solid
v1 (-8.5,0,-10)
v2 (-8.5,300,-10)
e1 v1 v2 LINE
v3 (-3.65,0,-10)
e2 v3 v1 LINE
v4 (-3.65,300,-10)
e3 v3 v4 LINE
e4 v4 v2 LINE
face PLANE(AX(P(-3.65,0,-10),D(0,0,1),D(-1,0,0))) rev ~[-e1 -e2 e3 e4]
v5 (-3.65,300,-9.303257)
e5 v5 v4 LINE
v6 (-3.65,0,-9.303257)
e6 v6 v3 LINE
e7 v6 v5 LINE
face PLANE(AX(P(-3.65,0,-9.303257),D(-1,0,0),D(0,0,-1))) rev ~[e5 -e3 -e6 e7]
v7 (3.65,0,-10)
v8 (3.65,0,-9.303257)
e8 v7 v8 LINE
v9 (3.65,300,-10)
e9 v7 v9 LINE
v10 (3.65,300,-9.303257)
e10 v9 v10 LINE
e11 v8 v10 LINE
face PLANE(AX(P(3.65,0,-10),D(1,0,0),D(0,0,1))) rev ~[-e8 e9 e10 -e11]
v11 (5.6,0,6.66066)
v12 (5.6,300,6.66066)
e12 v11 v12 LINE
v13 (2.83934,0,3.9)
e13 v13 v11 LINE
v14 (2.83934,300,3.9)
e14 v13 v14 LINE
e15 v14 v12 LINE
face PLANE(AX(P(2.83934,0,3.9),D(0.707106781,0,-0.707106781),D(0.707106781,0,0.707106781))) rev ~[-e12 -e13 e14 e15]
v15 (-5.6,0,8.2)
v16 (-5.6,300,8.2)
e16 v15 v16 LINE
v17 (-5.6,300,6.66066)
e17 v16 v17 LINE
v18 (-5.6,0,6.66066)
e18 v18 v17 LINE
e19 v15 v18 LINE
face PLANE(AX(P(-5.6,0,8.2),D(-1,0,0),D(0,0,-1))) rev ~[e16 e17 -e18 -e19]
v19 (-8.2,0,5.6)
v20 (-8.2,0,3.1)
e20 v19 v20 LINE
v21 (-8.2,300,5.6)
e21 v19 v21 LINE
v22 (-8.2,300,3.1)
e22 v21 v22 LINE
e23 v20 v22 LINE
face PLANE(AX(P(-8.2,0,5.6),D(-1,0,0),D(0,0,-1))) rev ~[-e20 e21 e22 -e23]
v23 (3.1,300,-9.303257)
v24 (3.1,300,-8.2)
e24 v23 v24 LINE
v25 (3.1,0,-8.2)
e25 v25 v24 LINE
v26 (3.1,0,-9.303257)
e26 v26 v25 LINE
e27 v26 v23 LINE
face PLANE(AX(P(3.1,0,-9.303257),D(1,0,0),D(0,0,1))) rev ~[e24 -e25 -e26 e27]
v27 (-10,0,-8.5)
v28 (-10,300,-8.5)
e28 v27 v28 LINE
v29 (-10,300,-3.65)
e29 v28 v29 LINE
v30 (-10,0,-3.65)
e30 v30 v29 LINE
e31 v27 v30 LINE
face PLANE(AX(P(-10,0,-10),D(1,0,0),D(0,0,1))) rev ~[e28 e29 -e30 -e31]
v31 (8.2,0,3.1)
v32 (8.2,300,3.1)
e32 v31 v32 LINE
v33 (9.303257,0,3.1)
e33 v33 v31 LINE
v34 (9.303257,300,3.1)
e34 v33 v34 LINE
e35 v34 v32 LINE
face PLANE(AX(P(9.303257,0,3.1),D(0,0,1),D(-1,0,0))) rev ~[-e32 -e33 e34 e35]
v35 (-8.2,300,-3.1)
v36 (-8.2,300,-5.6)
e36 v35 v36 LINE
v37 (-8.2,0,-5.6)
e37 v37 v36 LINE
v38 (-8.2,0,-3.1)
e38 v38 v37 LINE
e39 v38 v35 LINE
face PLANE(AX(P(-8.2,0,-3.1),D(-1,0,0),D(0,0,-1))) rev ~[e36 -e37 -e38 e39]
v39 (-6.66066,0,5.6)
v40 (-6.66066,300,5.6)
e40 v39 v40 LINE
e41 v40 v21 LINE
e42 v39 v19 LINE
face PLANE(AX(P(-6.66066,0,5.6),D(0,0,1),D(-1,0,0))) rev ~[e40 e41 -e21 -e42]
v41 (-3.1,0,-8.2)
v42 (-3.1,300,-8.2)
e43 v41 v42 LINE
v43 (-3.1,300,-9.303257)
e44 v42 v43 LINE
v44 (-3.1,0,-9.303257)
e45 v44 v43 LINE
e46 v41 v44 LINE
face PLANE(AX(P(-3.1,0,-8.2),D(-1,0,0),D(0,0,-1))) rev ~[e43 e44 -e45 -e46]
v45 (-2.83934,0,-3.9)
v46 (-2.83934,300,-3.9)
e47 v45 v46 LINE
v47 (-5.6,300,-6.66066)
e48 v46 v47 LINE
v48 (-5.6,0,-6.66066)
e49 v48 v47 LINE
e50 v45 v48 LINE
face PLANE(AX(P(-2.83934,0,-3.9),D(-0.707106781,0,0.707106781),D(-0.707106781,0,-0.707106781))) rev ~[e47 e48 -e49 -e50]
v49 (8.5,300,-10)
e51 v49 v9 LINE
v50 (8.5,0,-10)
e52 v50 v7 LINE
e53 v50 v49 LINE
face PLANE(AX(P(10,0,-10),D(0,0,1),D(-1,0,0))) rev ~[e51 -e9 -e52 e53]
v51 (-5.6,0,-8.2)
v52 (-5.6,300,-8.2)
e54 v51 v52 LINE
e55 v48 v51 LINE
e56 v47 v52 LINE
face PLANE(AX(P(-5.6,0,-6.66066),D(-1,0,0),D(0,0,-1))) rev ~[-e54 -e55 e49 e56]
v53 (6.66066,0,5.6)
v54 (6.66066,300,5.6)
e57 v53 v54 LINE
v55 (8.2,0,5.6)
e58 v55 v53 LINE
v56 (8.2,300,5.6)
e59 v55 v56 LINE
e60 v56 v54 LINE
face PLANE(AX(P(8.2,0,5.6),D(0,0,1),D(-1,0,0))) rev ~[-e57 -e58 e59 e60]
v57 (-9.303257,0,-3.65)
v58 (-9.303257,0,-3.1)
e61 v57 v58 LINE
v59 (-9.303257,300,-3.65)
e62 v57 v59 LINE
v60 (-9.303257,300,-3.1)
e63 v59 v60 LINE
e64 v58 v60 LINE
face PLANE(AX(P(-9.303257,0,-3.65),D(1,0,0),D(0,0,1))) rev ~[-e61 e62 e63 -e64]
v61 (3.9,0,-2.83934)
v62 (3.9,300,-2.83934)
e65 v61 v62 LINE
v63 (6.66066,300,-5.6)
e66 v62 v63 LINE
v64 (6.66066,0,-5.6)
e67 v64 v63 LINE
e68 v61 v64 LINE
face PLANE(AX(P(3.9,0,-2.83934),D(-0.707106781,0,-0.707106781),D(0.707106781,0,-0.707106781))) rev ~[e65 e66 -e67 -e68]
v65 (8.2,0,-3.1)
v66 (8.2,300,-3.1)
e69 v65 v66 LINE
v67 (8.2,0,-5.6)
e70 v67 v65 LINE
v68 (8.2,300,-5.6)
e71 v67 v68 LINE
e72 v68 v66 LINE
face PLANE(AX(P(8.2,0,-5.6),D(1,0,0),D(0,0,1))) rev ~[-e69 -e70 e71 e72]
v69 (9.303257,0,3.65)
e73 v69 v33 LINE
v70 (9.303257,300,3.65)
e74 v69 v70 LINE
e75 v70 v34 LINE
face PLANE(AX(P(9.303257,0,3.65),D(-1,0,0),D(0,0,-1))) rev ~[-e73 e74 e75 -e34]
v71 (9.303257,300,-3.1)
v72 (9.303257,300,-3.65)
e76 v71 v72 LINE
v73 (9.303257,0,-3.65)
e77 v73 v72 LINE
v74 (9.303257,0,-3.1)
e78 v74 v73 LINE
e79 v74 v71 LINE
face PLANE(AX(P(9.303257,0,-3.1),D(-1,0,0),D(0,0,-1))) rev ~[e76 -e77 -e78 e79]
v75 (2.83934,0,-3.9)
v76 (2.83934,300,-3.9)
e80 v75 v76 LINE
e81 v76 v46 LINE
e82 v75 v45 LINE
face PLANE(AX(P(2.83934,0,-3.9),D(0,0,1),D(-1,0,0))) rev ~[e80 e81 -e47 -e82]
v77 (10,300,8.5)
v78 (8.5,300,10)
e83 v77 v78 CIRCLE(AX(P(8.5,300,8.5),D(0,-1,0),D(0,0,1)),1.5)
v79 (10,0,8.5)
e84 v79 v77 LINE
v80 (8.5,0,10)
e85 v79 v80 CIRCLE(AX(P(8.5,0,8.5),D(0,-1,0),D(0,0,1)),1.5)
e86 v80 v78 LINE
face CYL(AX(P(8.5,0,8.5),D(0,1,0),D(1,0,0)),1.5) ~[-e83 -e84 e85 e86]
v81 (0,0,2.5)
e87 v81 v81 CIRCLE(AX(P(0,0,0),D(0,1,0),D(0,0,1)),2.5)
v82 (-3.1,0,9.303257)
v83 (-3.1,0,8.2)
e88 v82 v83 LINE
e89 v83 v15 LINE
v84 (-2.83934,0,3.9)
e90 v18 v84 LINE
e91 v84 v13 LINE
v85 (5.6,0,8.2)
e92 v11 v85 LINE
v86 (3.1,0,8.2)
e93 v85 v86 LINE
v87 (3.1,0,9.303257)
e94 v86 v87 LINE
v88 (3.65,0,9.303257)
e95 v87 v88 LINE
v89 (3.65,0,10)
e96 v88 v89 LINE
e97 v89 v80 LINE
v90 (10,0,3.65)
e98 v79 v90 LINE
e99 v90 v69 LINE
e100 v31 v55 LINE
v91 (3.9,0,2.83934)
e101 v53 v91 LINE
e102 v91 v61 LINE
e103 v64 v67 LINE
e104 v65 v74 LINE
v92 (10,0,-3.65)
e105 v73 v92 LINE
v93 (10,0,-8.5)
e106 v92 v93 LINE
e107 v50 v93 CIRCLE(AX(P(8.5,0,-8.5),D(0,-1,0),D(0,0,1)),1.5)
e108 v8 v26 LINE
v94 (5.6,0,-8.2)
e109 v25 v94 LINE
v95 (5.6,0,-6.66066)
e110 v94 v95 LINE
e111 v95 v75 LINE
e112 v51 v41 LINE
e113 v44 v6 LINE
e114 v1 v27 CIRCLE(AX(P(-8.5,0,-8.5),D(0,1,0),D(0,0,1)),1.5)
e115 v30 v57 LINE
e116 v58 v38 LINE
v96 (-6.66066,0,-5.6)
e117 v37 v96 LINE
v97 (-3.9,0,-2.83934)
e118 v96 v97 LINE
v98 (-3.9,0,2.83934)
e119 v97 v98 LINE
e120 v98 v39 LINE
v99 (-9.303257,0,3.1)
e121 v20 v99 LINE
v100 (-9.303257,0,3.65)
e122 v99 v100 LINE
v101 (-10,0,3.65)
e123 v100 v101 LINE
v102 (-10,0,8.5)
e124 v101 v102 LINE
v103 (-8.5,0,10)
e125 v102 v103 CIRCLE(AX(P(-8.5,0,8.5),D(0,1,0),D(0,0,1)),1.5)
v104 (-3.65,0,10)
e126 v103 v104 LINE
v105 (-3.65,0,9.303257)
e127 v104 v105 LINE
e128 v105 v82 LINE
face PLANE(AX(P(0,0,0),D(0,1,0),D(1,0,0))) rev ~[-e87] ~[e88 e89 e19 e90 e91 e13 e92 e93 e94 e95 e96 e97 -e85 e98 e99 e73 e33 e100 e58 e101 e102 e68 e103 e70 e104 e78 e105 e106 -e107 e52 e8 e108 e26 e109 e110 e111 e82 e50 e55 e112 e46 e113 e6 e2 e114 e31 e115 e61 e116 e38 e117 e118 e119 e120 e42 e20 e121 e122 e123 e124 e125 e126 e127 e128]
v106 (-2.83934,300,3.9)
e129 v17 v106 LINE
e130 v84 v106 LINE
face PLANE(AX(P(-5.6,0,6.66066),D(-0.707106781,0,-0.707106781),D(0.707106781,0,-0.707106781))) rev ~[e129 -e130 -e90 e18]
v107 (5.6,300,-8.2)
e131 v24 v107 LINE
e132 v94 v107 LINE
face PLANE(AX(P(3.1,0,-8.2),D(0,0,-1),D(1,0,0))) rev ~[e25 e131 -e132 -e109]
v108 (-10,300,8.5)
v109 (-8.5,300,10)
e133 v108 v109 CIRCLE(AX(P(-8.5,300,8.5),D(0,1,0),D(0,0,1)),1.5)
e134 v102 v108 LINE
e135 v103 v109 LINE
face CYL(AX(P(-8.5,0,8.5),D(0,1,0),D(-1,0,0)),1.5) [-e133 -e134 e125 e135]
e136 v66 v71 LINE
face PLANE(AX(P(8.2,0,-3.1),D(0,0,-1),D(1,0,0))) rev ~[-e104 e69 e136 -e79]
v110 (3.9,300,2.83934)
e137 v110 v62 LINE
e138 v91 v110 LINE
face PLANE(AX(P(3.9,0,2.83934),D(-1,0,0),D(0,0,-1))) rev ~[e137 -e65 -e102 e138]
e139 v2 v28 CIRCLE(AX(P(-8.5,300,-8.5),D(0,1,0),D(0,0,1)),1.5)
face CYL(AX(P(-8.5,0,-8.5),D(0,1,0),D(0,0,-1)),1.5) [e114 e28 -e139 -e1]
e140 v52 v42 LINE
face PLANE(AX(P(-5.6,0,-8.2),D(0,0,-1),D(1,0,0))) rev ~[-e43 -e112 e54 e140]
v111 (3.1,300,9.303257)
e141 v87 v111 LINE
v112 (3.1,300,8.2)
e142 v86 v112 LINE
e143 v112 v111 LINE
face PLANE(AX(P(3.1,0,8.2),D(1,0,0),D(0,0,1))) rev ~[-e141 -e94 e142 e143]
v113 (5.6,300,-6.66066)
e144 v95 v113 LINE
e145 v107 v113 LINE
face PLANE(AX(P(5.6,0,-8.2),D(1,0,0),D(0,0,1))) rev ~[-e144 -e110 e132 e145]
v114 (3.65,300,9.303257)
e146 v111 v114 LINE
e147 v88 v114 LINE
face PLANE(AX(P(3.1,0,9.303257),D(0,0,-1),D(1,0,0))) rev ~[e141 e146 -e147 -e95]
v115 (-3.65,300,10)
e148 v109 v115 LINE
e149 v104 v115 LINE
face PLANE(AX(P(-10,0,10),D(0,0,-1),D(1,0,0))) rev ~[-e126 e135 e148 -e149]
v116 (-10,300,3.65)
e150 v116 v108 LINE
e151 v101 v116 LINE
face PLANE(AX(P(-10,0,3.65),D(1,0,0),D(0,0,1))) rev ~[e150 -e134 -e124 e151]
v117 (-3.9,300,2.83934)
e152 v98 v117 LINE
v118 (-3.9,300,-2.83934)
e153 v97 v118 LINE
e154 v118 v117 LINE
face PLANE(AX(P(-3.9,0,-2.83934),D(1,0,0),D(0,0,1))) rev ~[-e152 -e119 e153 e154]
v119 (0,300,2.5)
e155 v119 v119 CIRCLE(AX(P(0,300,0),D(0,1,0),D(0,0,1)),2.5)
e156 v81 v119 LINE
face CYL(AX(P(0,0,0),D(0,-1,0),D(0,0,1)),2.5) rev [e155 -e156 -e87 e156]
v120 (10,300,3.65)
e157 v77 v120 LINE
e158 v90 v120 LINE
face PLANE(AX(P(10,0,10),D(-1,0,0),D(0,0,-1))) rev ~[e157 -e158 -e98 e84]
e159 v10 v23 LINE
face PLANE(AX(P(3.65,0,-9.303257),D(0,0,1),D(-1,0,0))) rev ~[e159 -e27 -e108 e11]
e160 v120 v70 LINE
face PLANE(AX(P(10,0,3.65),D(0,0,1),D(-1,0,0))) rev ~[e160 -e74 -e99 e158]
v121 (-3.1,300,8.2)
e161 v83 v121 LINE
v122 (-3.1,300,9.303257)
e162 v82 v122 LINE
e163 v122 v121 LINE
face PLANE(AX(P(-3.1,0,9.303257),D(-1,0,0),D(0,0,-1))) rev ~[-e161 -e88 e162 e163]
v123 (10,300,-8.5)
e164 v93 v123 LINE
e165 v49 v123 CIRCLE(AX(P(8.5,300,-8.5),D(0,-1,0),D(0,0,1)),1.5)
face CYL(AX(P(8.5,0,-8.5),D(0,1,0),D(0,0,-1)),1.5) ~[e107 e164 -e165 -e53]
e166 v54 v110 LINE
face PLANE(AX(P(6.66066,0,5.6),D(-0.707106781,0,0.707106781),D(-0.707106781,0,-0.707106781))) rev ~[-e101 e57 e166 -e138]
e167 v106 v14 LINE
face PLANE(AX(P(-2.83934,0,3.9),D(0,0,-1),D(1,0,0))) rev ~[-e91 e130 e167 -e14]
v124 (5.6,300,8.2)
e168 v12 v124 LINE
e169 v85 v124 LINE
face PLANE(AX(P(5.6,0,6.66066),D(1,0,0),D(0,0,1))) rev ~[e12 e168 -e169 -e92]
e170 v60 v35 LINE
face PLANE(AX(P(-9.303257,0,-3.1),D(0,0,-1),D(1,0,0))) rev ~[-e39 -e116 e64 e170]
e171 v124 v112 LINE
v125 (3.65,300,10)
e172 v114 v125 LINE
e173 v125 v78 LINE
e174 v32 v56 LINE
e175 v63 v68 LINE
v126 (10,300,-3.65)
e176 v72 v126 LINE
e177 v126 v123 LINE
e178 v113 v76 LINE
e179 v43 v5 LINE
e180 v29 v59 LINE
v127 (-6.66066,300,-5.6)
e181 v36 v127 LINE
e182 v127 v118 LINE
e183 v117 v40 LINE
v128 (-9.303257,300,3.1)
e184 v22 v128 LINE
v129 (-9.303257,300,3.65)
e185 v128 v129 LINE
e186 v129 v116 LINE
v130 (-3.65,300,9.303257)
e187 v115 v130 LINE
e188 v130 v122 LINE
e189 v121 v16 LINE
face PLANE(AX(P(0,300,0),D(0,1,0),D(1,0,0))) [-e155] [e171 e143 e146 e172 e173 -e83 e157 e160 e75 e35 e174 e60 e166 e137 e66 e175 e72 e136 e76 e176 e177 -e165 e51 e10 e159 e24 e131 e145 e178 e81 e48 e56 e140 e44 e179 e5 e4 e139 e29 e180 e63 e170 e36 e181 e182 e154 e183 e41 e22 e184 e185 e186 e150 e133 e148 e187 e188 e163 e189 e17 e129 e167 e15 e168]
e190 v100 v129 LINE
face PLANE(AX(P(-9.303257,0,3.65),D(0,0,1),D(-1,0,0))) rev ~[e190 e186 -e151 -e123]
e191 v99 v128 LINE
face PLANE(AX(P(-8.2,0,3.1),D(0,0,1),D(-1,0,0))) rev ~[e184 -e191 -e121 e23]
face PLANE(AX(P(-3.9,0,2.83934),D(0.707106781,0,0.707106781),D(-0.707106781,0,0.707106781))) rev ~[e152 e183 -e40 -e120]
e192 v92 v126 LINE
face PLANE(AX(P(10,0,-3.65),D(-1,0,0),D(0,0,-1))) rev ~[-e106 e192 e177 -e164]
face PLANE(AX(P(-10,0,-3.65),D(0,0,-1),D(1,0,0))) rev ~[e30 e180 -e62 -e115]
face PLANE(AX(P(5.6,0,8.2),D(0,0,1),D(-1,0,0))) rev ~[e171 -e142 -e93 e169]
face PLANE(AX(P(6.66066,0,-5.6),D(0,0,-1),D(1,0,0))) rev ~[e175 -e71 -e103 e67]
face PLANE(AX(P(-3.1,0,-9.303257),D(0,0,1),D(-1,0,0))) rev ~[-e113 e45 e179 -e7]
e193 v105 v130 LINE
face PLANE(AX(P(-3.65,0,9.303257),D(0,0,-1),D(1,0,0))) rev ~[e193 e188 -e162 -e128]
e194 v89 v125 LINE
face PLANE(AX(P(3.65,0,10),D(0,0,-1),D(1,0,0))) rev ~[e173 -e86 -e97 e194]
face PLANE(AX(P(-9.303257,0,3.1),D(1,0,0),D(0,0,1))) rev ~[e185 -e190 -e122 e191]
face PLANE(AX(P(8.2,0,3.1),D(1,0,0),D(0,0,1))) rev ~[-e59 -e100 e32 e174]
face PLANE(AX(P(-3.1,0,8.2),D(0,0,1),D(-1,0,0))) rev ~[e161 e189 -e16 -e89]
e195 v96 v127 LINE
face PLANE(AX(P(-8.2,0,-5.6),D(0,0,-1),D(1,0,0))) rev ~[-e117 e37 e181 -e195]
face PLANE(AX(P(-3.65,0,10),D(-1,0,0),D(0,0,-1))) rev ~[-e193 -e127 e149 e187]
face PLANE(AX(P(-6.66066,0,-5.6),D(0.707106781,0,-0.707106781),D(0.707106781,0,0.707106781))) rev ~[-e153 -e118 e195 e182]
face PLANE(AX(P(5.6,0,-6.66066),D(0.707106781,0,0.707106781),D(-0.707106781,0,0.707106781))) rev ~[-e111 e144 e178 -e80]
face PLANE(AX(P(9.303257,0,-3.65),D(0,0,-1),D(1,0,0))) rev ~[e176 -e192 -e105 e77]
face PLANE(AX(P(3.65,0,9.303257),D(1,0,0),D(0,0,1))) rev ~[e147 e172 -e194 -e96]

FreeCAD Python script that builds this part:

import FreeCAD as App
import Part
import Sketcher
Q = App.Units.Quantity


def edges_at(feature, points):
    """Names of the edges that pass closest to the given points."""
    edges = feature.Shape.Edges
    near = lambda p: min(range(len(edges)), key=lambda i: edges[i].distToShape(Part.Vertex(*p))[0])
    return sorted({f"Edge{near(p) + 1}" for p in points})


def add_polygon(sketch, points):
    """Adds a closed chain of lines whose ends are joined by coincident constraints."""
    first, n = sketch.GeometryCount, len(points)
    for a, b in zip(points, points[1:] + points[:1]):
        sketch.addGeometry(Part.LineSegment(App.Vector(*a, 0), App.Vector(*b, 0)), False)
    for i in range(n):
        sketch.addConstraint(Sketcher.Constraint("Coincident", first + i, 2, first + (i + 1) % n, 1))

doc = App.newDocument("Part")
body = doc.addObject("PartDesign::Body", "Body")

sketch1 = body.newObject("Sketcher::SketchObject", "Sketch")
sketch1.AttachmentSupport = (doc.getObject("XZ_Plane"), [""])
sketch1.MapMode = "FlatFace"
add_polygon(sketch1, [(10, -10), (3.6, -10), (3.6, -9.3), (3.1, -9.3), (3.1, -8.2), (5.6, -8.2), (5.6, -6.7), (2.8, -3.9), (-2.8, -3.9), (-5.6, -6.7), (-5.6, -8.2), (-3.1, -8.2), (-3.1, -9.3), (-3.6, -9.3), (-3.6, -10), (-10, -10), (-10, -3.6), (-9.3, -3.6), (-9.3, -3.1), (-8.2, -3.1), (-8.2, -5.6), (-6.7, -5.6), (-3.9, -2.8), (-3.9, 2.8), (-6.7, 5.6), (-8.2, 5.6), (-8.2, 3.1), (-9.3, 3.1), (-9.3, 3.6), (-10, 3.6), (-10, 10), (-3.6, 10), (-3.6, 9.3), (-3.1, 9.3), (-3.1, 8.2), (-5.6, 8.2), (-5.6, 6.7), (-2.8, 3.9), (2.8, 3.9), (5.6, 6.7), (5.6, 8.2), (3.1, 8.2), (3.1, 9.3), (3.6, 9.3), (3.6, 10), (10, 10), (10, 3.6), (9.3, 3.6), (9.3, 3.1), (8.2, 3.1), (8.2, 5.6), (6.7, 5.6), (3.9, 2.8), (3.9, -2.8), (6.7, -5.6), (8.2, -5.6), (8.2, -3.1), (9.3, -3.1), (9.3, -3.6), (10, -3.6)])
sketch1.addGeometry(Part.Circle(App.Vector(0, 0, 0), App.Vector(0, 0, 1), 2.5), False)
sketch1.addConstraint(Sketcher.Constraint("Horizontal", 0))
sketch1.addConstraint(Sketcher.Constraint("Vertical", 1))
sketch1.addConstraint(Sketcher.Constraint("Horizontal", 2))
sketch1.addConstraint(Sketcher.Constraint("Vertical", 3))
sketch1.addConstraint(Sketcher.Constraint("Horizontal", 4))
sketch1.addConstraint(Sketcher.Constraint("Vertical", 5))
sketch1.addConstraint(Sketcher.Constraint("Horizontal", 7))
sketch1.addConstraint(Sketcher.Constraint("Vertical", 9))
sketch1.addConstraint(Sketcher.Constraint("Horizontal", 10))
sketch1.addConstraint(Sketcher.Constraint("Vertical", 11))
sketch1.addConstraint(Sketcher.Constraint("Horizontal", 12))
sketch1.addConstraint(Sketcher.Constraint("Vertical", 13))
sketch1.addConstraint(Sketcher.Constraint("Horizontal", 14))
sketch1.addConstraint(Sketcher.Constraint("Vertical", 15))
sketch1.addConstraint(Sketcher.Constraint("Horizontal", 16))
sketch1.addConstraint(Sketcher.Constraint("Vertical", 17))
sketch1.addConstraint(Sketcher.Constraint("Horizontal", 18))
sketch1.addConstraint(Sketcher.Constraint("Vertical", 19))
sketch1.addConstraint(Sketcher.Constraint("Horizontal", 20))
sketch1.addConstraint(Sketcher.Constraint("Vertical", 22))
sketch1.addConstraint(Sketcher.Constraint("Horizontal", 24))
sketch1.addConstraint(Sketcher.Constraint("Vertical", 25))
sketch1.addConstraint(Sketcher.Constraint("Horizontal", 26))
sketch1.addConstraint(Sketcher.Constraint("Vertical", 27))
sketch1.addConstraint(Sketcher.Constraint("Horizontal", 28))
sketch1.addConstraint(Sketcher.Constraint("Vertical", 29))
sketch1.addConstraint(Sketcher.Constraint("Horizontal", 30))
sketch1.addConstraint(Sketcher.Constraint("Vertical", 31))
sketch1.addConstraint(Sketcher.Constraint("Horizontal", 32))
sketch1.addConstraint(Sketcher.Constraint("Vertical", 33))
sketch1.addConstraint(Sketcher.Constraint("Horizontal", 34))
sketch1.addConstraint(Sketcher.Constraint("Vertical", 35))
sketch1.addConstraint(Sketcher.Constraint("Horizontal", 37))
sketch1.addConstraint(Sketcher.Constraint("Vertical", 39))
sketch1.addConstraint(Sketcher.Constraint("Horizontal", 40))
sketch1.addConstraint(Sketcher.Constraint("Vertical", 41))
sketch1.addConstraint(Sketcher.Constraint("Horizontal", 42))
sketch1.addConstraint(Sketcher.Constraint("Vertical", 43))
sketch1.addConstraint(Sketcher.Constraint("Horizontal", 44))
sketch1.addConstraint(Sketcher.Constraint("Vertical", 45))
sketch1.addConstraint(Sketcher.Constraint("Horizontal", 46))
sketch1.addConstraint(Sketcher.Constraint("Vertical", 47))
sketch1.addConstraint(Sketcher.Constraint("Horizontal", 48))
sketch1.addConstraint(Sketcher.Constraint("Vertical", 49))
sketch1.addConstraint(Sketcher.Constraint("Horizontal", 50))
sketch1.addConstraint(Sketcher.Constraint("Vertical", 52))
sketch1.addConstraint(Sketcher.Constraint("Horizontal", 54))
sketch1.addConstraint(Sketcher.Constraint("Vertical", 55))
sketch1.addConstraint(Sketcher.Constraint("Horizontal", 56))
sketch1.addConstraint(Sketcher.Constraint("Vertical", 57))
sketch1.addConstraint(Sketcher.Constraint("Horizontal", 58))
sketch1.addConstraint(Sketcher.Constraint("Vertical", 59))
sketch1.addConstraint(Sketcher.Constraint("Coincident", 60, 3, -1, 1))
sketch1.addConstraint(Sketcher.Constraint("Symmetric", 0, 2, 30, 2, -1, 1))
sketch1.addConstraint(Sketcher.Constraint("Symmetric", 2, 2, 32, 2, -1, 1))
sketch1.addConstraint(Sketcher.Constraint("Symmetric", 4, 2, 34, 2, -1, 1))
sketch1.addConstraint(Sketcher.Constraint("Symmetric", 6, 2, 36, 2, -1, 1))
sketch1.addConstraint(Sketcher.Constraint("Symmetric", 8, 2, 38, 2, -1, 1))
sketch1.addConstraint(Sketcher.Constraint("Symmetric", 10, 2, 40, 2, -1, 1))
sketch1.addConstraint(Sketcher.Constraint("Symmetric", 12, 2, 42, 2, -1, 1))
sketch1.addConstraint(Sketcher.Constraint("Symmetric", 14, 2, 44, 2, -1, 1))
sketch1.addConstraint(Sketcher.Constraint("Symmetric", 16, 2, 46, 2, -1, 1))
sketch1.addConstraint(Sketcher.Constraint("Symmetric", 18, 2, 48, 2, -1, 1))
sketch1.addConstraint(Sketcher.Constraint("Symmetric", 20, 2, 50, 2, -1, 1))
sketch1.addConstraint(Sketcher.Constraint("Symmetric", 21, 2, 51, 2, -1, 1))
sketch1.addConstraint(Sketcher.Constraint("Symmetric", 23, 2, 53, 2, -1, 1))
sketch1.addConstraint(Sketcher.Constraint("Symmetric", 25, 2, 55, 2, -1, 1))
sketch1.addConstraint(Sketcher.Constraint("Symmetric", 27, 2, 57, 2, -1, 1))
sketch1.addConstraint(Sketcher.Constraint("Symmetric", 5, 2, 8, 2, -2))
sketch1.addConstraint(Sketcher.Constraint("Symmetric", 3, 2, 10, 2, -2))
sketch1.addConstraint(Sketcher.Constraint("Symmetric", 1, 2, 12, 2, -2))
sketch1.addConstraint(Sketcher.Constraint("Symmetric", 29, 2, 44, 2, -2))
sketch1.addConstraint(Sketcher.Constraint("Symmetric", 27, 2, 46, 2, -2))
sketch1.addConstraint(Sketcher.Constraint("Symmetric", 25, 2, 48, 2, -2))
sketch1.addConstraint(Sketcher.Constraint("Symmetric", 23, 2, 50, 2, -2))
sketch1.addConstraint(Sketcher.Constraint("Perpendicular", 6, 8))
sketch1.addConstraint(Sketcher.Constraint("Parallel", 8, 21))
sketch1.addConstraint(Sketcher.Constraint("Perpendicular", 21, 23))
sketch1.addConstraint(Sketcher.Constraint("Parallel", 23, 36))
sketch1.addConstraint(Sketcher.Constraint("Perpendicular", 36, 38))
sketch1.addConstraint(Sketcher.Constraint("Perpendicular", 51, 53))
sketch1.addConstraint(Sketcher.Constraint("Horizontal", 22, 2, 51, 2))
sketch1.addConstraint(Sketcher.Constraint("Vertical", 45, 2, 58, 2))
sketch1.addConstraint(Sketcher.Constraint("Equal", 58, 1))
sketch1.addConstraint(Sketcher.Constraint("Equal", 56, 3))
sketch1.addConstraint(Sketcher.Constraint("Equal", 54, 5))
sketch1.addConstraint(Sketcher.Constraint("Equal", 44, 15))
sketch1.addConstraint(Sketcher.Constraint("Equal", 42, 17))
sketch1.addConstraint(Sketcher.Constraint("Equal", 40, 19))
sketch1.addConstraint(Sketcher.Constraint("Equal", 37, 22))
sketch1.addConstraint(Sketcher.Constraint("Equal", 8, 21))
sketch1.addConstraint(Sketcher.Constraint("Diameter", 60, Q("5 mm")))
sketch1.addConstraint(Sketcher.Constraint("DistanceX", 4, 1, 4, 2, Q("2.5 mm")))
sketch1.addConstraint(Sketcher.Constraint("DistanceY", 0, 2, -1, 1, Q("10 mm")))
sketch1.addConstraint(Sketcher.Constraint("DistanceX", 0, 2, 0, 1, Q("6.35 mm")))
sketch1.addConstraint(Sketcher.Constraint("DistanceX", 2, 2, 2, 1, Q("0.55 mm")))
sketch1.addConstraint(Sketcher.Constraint("DistanceY", 3, 2, -1, 1, Q("8.2 mm")))
sketch1.addConstraint(Sketcher.Constraint("DistanceY", 6, 2, -1, 1, Q("3.9 mm")))
sketch1.addConstraint(Sketcher.Constraint("DistanceX", 7, 2, 7, 1, Q("5.67868 mm")))
sketch1.addConstraint(Sketcher.Constraint("DistanceX", 16, 1, 16, 2, Q("0.696743 mm")))
pad1 = body.newObject("PartDesign::Pad", "Pad")
pad1.Profile = sketch1
pad1.Length = 300
pad1.Reversed = True
doc.recompute()

fillet = body.newObject("PartDesign::Fillet", "Fillet")
fillet.Base = (pad1, edges_at(pad1, [
    (10, 150, 10),
    (-10, 150, 10),
    (-10, 150, -10),
    (10, 150, -10),
]))
fillet.Radius = 1.5

doc.recompute()
